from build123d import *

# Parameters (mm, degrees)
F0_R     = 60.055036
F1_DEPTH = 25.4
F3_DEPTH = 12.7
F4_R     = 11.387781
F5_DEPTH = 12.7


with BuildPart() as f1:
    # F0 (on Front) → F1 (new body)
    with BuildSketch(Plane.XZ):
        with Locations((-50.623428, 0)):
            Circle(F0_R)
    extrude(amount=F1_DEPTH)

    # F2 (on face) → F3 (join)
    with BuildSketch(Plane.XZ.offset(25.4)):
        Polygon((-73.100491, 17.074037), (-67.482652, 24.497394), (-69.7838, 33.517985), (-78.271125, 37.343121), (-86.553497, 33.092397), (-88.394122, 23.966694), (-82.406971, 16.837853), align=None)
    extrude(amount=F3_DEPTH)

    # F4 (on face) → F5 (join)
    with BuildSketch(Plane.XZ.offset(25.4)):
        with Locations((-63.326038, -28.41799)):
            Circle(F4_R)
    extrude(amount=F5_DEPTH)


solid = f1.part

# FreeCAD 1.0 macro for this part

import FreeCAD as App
import Part
import Sketcher
from FreeCAD import Vector


def add_polygon(sketch, points):
    """Adds a closed chain of lines whose ends are joined by coincident constraints."""
    first, n = sketch.GeometryCount, len(points)
    for a, b in zip(points, points[1:] + points[:1]):
        sketch.addGeometry(Part.LineSegment(App.Vector(*a, 0), App.Vector(*b, 0)), False)
    for i in range(n):
        sketch.addConstraint(Sketcher.Constraint("Coincident", first + i, 2, first + (i + 1) % n, 1))

doc = App.newDocument("Part")
params = doc.addObject("Spreadsheet::Sheet", "Params")
for row, (alias, value) in enumerate([
    ("pad1_length", "1 in"),
    ("pad2_length", "0.5 in"),
    ("pad3_length", "0.5 in"),
], start=1):
    params.set(f"A{row}", alias)
    params.set(f"B{row}", "=" + value)
    params.setAlias(f"B{row}", alias)

body = doc.addObject("PartDesign::Body", "Body")

# Sketch on XZ plane
sketch1 = body.newObject("Sketcher::SketchObject", "Sketch")
sketch1.AttachmentSupport = (doc.getObject("XZ_Plane"), [""])
sketch1.MapMode = "FlatFace"
sketch1.addGeometry(Part.Circle(Vector(-51, 0, 0), Vector(0, 0, 1), 60), False)
sketch1.addConstraint([
    Sketcher.Constraint("PointOnObject", 0, 3, -1),
    Sketcher.Constraint("Diameter", 0, 120.110072),
    Sketcher.Constraint("DistanceX", 0, 3, -1, 1, 50.623428),
])
pad1 = body.newObject("PartDesign::Pad", "Pad")
pad1.Profile = sketch1
pad1.setExpression("Length", "Params.pad1_length")

# Sketch on XZ plane
sketch2 = body.newObject("Sketcher::SketchObject", "Sketch001")
sketch2.AttachmentSupport = (doc.getObject("XZ_Plane"), [""])
sketch2.MapMode = "FlatFace"
sketch2.AttachmentOffset = App.Placement(Vector(0, 0, 1 * 25.4), App.Rotation())
add_polygon(sketch2, [(-73, 17), (-67, 24), (-70, 34), (-78, 37), (-87, 33), (-88, 24), (-82, 17)])  # lines 0-6
sketch2.addConstraint([
    Sketcher.Constraint("Equal", 0, 1),
    Sketcher.Constraint("Equal", 1, 2),
    Sketcher.Constraint("Equal", 2, 3),
    Sketcher.Constraint("Equal", 3, 4),
    Sketcher.Constraint("Equal", 4, 5),
    Sketcher.Constraint("Equal", 5, 6),
    Sketcher.Constraint("DistanceX", 1, 2, -1, 1, 69.7838),
    Sketcher.Constraint("DistanceY", 4, 2, 0, 2, 0.5307),
    Sketcher.Constraint("DistanceX", 0, 2, -1, 1, 67.482652),
    Sketcher.Constraint("DistanceY", -1, 1, 2, 2, 37.343121),
    Sketcher.Constraint("DistanceX", 4, 2, -1, 1, 88.394122),
    Sketcher.Constraint("DistanceX", 5, 2, -1, 1, 82.406971),
    Sketcher.Constraint("DistanceX", 6, 2, -1, 1, 73.100491),
    Sketcher.Constraint("DistanceX", 3, 2, 2, 2, 8.282372),
])
pad2 = body.newObject("PartDesign::Pad", "Pad001")
pad2.Profile = sketch2
pad2.setExpression("Length", "Params.pad2_length")

# Sketch on XZ plane
sketch3 = body.newObject("Sketcher::SketchObject", "Sketch002")
sketch3.AttachmentSupport = (doc.getObject("XZ_Plane"), [""])
sketch3.MapMode = "FlatFace"
sketch3.AttachmentOffset = App.Placement(Vector(0, 0, 1 * 25.4), App.Rotation())
sketch3.addGeometry(Part.Circle(Vector(-63, -28, 0), Vector(0, 0, 1), 11), False)
sketch3.addConstraint([
    Sketcher.Constraint("Diameter", 0, 22.775562),
    Sketcher.Constraint("DistanceY", 0, 3, -1, 1, 28.41799),
    Sketcher.Constraint("DistanceX", 0, 3, -1, 1, 63.326038),
])
pad3 = body.newObject("PartDesign::Pad", "Pad002")
pad3.Profile = sketch3
pad3.setExpression("Length", "Params.pad3_length")

doc.recompute()
